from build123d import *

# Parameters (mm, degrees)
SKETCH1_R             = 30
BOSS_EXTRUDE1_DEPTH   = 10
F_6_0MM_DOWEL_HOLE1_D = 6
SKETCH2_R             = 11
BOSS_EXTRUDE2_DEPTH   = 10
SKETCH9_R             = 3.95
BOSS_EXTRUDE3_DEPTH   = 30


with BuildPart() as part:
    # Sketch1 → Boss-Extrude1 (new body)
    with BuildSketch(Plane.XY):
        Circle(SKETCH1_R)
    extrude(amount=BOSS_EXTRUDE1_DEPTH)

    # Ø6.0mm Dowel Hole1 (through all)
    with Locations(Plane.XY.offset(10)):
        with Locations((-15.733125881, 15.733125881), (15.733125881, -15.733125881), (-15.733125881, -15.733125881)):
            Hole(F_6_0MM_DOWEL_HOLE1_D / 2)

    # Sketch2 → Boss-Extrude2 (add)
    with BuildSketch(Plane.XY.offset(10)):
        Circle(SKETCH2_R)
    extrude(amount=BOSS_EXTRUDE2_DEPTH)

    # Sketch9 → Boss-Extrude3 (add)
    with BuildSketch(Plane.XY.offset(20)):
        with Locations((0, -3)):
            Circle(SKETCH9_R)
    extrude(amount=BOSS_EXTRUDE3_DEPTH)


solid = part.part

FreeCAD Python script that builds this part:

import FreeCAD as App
import Part
import Sketcher

V = App.Vector
Q = App.Units.Quantity

doc = App.newDocument("Part")
body = doc.addObject("PartDesign::Body", "Body")

# Sketch on XY plane
sketch1 = body.newObject("Sketcher::SketchObject", "Sketch")
sketch1.AttachmentSupport = (doc.getObject("XY_Plane"), [""])
sketch1.MapMode = "FlatFace"
sketch1.addGeometry(Part.Circle(V(0, 0, 0), V(0, 0, 1), 30), False)
sketch1.addConstraint(Sketcher.Constraint("Coincident", 0, 3, -1, 1))
sketch1.addConstraint(Sketcher.Constraint("Diameter", 0, Q("60 mm")))
pad1 = body.newObject("PartDesign::Pad", "Pad")
pad1.Profile = sketch1
pad1.Length = 10

# Sketch on XY plane
sketch2 = body.newObject("Sketcher::SketchObject", "Sketch001")
sketch2.AttachmentSupport = (doc.getObject("XY_Plane"), [""])
sketch2.MapMode = "FlatFace"
sketch2.AttachmentOffset = App.Placement(V(0, 0, 10), App.Rotation())
sketch2.addGeometry(Part.Circle(V(-15.7, 15.7, 0), V(0, 0, 1), 3), False)
sketch2.addGeometry(Part.Circle(V(15.7, -15.7, 0), V(0, 0, 1), 3), False)
sketch2.addGeometry(Part.Circle(V(-15.7, -15.7, 0), V(0, 0, 1), 3), False)
sketch2.addConstraint(Sketcher.Constraint("Equal", 0, 1))
sketch2.addConstraint(Sketcher.Constraint("Equal", 1, 2))
sketch2.addConstraint(Sketcher.Constraint("Symmetric", 0, 3, 1, 3, -1, 1))
sketch2.addConstraint(Sketcher.Constraint("Symmetric", 1, 3, 2, 3, -2))
sketch2.addConstraint(Sketcher.Constraint("Diameter", 0, Q("6 mm")))
sketch2.addConstraint(Sketcher.Constraint("DistanceX", 0, 3, 1, 3, Q("31.466252 mm")))
sketch2.addConstraint(Sketcher.Constraint("DistanceY", 1, 3, 0, 3, Q("31.466252 mm")))
doc.recompute()
hole = body.newObject("PartDesign::Hole", "Hole")
hole.Profile = sketch2
hole.ThreadType = "None"
hole.Diameter = 6
hole.DepthType = "ThroughAll"

# Sketch on XY plane
sketch3 = body.newObject("Sketcher::SketchObject", "Sketch002")
sketch3.AttachmentSupport = (doc.getObject("XY_Plane"), [""])
sketch3.MapMode = "FlatFace"
sketch3.AttachmentOffset = App.Placement(V(0, 0, 10), App.Rotation())
sketch3.addGeometry(Part.Circle(V(0, 0, 0), V(0, 0, 1), 11), False)
sketch3.addConstraint(Sketcher.Constraint("Coincident", 0, 3, -1, 1))
sketch3.addConstraint(Sketcher.Constraint("Diameter", 0, Q("22 mm")))
pad2 = body.newObject("PartDesign::Pad", "Pad001")
pad2.Profile = sketch3
pad2.Length = 10

# Sketch on XY plane
sketch4 = body.newObject("Sketcher::SketchObject", "Sketch003")
sketch4.AttachmentSupport = (doc.getObject("XY_Plane"), [""])
sketch4.MapMode = "FlatFace"
sketch4.AttachmentOffset = App.Placement(V(0, 0, 20), App.Rotation())
sketch4.addGeometry(Part.Circle(V(0, -3, 0), V(0, 0, 1), 4), False)
sketch4.addConstraint(Sketcher.Constraint("PointOnObject", 0, 3, -2))
sketch4.addConstraint(Sketcher.Constraint("Diameter", 0, Q("7.9 mm")))
sketch4.addConstraint(Sketcher.Constraint("DistanceY", 0, 3, -1, 1, Q("3 mm")))
pad3 = body.newObject("PartDesign::Pad", "Pad002")
pad3.Profile = sketch4
pad3.Length = 30

doc.recompute()
